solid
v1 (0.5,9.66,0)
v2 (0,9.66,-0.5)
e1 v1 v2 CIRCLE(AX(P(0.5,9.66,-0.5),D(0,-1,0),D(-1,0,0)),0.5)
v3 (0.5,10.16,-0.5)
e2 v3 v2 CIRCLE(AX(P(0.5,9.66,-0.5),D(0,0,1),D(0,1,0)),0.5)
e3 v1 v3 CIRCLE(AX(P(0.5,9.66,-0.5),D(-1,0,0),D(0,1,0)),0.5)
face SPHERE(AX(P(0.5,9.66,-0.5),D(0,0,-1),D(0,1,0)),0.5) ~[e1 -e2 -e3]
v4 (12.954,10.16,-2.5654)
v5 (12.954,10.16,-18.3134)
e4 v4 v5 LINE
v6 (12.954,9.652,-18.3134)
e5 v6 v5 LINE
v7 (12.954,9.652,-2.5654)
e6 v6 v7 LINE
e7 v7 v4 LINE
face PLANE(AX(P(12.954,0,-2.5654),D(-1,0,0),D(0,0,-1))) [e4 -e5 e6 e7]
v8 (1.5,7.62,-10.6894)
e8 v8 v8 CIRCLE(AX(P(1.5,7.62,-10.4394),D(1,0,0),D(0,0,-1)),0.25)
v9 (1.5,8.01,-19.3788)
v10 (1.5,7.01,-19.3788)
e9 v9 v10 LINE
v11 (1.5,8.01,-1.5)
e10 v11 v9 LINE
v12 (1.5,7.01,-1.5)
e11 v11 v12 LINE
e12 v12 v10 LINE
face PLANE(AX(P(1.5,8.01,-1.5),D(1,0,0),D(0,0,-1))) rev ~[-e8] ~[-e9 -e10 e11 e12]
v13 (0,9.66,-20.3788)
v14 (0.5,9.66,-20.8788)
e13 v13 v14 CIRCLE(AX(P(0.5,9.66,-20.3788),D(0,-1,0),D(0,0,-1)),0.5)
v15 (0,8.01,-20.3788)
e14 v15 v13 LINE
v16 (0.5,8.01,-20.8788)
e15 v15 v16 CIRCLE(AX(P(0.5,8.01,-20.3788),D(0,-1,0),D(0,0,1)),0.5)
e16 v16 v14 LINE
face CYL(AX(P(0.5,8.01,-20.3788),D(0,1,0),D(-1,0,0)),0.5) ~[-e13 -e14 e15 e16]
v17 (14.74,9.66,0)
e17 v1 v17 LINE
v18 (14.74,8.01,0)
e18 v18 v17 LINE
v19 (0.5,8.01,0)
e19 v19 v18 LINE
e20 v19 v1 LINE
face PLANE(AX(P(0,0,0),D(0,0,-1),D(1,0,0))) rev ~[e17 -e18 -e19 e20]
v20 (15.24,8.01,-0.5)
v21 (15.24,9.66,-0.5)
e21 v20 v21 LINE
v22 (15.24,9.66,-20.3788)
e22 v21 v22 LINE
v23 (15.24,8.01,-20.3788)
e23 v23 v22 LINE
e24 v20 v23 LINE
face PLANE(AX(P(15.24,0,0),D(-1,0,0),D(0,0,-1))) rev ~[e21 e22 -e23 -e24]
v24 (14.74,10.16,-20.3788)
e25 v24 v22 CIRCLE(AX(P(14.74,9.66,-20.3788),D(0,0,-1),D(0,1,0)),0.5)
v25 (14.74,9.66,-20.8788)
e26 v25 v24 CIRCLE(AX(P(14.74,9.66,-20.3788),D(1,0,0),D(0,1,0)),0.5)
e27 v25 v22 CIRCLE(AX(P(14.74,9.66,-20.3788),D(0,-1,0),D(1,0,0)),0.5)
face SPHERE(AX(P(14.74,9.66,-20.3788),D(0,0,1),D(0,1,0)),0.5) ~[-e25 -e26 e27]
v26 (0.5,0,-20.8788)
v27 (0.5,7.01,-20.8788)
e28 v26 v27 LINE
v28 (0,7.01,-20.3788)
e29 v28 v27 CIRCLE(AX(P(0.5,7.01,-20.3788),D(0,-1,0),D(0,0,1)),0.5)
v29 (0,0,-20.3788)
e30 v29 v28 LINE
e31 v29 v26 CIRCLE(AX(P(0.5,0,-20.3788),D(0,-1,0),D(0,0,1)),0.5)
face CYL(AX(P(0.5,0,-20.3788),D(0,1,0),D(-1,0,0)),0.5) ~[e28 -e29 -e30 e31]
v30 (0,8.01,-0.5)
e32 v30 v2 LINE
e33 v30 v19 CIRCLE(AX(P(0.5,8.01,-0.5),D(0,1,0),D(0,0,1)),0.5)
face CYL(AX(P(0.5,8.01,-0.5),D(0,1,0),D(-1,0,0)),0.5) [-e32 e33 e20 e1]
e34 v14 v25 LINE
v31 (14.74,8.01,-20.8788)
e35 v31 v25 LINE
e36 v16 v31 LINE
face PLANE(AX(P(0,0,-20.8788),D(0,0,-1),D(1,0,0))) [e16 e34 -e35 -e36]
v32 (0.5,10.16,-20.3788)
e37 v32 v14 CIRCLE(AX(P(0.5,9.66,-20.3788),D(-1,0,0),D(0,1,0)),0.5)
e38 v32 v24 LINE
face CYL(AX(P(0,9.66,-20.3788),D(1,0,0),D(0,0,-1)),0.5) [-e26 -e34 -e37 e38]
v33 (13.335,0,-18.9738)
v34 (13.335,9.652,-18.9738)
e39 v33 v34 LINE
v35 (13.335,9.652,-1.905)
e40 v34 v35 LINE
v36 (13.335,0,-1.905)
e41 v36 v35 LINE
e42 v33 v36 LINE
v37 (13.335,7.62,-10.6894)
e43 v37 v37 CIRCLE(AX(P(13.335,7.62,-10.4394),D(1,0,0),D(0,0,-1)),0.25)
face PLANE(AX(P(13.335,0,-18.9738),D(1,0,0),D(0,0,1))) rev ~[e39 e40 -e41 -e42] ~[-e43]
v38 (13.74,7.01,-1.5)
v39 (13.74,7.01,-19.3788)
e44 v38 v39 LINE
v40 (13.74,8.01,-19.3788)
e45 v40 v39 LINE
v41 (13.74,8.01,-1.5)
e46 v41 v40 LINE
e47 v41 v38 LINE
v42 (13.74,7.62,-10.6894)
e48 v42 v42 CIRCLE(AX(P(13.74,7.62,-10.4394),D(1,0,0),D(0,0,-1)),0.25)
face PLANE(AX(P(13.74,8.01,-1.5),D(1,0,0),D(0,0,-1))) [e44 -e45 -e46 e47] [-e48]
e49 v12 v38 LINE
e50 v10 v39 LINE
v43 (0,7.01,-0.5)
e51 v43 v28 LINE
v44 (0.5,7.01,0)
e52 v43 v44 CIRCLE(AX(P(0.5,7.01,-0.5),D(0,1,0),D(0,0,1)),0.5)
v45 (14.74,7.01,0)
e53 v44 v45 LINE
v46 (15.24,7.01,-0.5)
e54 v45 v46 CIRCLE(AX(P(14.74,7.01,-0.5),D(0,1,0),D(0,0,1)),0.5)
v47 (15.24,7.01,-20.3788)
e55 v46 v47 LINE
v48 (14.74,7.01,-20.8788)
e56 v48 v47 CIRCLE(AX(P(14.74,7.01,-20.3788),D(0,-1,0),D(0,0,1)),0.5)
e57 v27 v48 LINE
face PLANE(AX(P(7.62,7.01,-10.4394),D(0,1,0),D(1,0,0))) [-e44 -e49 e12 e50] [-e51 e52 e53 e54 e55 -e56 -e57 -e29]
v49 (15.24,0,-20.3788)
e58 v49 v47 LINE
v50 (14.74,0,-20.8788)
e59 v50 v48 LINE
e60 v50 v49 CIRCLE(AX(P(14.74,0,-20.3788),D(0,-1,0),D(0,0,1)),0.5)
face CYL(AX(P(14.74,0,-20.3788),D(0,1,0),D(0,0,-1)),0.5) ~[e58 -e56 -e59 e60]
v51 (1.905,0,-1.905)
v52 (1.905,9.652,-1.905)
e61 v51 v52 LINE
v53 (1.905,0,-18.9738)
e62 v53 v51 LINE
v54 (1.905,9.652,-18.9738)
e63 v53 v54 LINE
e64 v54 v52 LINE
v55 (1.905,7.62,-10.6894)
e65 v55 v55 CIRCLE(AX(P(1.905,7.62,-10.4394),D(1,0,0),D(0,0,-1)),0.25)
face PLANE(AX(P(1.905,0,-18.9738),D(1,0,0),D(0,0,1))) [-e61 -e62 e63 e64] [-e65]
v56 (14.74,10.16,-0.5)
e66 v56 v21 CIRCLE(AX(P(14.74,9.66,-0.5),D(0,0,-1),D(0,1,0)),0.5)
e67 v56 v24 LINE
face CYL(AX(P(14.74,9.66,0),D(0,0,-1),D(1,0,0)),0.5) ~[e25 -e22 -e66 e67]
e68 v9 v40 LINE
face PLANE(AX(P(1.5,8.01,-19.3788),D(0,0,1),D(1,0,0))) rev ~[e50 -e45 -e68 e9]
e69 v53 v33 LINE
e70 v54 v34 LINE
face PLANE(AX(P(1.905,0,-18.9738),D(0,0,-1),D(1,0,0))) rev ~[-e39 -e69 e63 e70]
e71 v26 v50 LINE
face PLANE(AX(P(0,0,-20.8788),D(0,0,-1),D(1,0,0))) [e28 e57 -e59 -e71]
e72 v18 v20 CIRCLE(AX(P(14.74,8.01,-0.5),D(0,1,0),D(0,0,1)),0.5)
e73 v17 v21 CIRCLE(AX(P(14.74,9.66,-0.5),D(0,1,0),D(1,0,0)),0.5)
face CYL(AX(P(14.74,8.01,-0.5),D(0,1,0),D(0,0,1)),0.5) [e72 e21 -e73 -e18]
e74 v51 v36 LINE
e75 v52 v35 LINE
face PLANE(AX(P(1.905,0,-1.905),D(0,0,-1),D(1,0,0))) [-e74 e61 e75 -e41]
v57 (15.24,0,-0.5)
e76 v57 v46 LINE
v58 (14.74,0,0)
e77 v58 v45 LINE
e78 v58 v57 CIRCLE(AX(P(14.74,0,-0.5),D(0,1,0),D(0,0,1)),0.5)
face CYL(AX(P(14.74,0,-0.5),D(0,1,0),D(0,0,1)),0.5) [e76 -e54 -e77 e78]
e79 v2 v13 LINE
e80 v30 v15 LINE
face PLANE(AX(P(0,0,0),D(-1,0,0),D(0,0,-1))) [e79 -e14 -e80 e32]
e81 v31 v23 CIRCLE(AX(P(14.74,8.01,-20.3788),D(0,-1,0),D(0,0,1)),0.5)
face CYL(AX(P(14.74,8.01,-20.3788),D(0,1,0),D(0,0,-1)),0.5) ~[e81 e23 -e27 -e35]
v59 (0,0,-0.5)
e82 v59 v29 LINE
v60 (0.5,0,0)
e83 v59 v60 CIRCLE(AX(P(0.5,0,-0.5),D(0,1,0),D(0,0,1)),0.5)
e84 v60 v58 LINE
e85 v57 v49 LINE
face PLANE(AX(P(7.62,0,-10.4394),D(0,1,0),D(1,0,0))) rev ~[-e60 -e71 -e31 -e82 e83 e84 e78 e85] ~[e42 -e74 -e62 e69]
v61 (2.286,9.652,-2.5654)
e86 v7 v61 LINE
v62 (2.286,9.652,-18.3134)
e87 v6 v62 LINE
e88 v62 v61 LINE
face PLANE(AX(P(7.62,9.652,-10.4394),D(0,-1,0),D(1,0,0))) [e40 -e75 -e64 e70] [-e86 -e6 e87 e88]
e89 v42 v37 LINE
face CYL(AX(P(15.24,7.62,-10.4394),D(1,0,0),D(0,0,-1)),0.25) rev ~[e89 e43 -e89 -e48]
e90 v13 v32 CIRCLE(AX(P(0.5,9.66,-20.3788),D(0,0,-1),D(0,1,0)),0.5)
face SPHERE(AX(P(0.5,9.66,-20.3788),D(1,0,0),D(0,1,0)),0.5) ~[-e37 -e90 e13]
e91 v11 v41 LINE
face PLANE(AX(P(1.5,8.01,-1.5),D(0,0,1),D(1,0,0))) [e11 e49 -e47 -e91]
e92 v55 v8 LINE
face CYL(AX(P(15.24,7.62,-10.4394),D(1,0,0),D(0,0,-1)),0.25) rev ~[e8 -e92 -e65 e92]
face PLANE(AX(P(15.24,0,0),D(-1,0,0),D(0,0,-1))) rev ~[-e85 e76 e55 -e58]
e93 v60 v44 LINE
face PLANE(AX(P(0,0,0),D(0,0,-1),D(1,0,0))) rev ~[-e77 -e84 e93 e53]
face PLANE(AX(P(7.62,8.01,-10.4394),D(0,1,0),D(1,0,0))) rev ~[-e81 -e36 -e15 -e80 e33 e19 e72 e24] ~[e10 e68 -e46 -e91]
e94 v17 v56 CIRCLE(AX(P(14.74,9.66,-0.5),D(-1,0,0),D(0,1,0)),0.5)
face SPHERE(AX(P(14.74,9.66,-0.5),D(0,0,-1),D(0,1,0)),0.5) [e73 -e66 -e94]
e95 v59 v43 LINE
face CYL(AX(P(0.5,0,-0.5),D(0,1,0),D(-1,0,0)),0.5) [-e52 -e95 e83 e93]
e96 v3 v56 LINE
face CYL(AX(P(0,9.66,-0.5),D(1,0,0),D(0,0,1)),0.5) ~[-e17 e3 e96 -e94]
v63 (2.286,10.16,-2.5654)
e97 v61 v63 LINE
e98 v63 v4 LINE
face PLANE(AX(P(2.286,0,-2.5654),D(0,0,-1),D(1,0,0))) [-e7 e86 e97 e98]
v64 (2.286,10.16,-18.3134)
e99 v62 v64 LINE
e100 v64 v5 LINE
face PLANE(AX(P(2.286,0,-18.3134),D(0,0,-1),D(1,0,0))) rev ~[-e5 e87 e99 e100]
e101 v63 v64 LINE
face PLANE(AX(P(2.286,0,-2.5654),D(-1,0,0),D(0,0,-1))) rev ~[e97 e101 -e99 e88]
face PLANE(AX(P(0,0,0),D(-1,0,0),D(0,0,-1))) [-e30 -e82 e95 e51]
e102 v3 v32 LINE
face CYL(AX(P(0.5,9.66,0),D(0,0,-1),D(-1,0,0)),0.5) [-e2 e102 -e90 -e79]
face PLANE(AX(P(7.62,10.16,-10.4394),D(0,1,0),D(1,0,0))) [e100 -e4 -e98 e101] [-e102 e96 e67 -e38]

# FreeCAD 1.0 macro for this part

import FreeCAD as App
import Part
import Sketcher
from FreeCAD import Vector
Q = App.Units.Quantity


def edges_at(feature, points):
    """Names of the edges that pass closest to the given points."""
    edges = feature.Shape.Edges
    near = lambda p: min(range(len(edges)), key=lambda i: edges[i].distToShape(Part.Vertex(*p))[0])
    return sorted({f"Edge{near(p) + 1}" for p in points})


def add_polygon(sketch, points):
    """Adds a closed chain of lines whose ends are joined by coincident constraints."""
    first, n = sketch.GeometryCount, len(points)
    for a, b in zip(points, points[1:] + points[:1]):
        sketch.addGeometry(Part.LineSegment(App.Vector(*a, 0), App.Vector(*b, 0)), False)
    for i in range(n):
        sketch.addConstraint(Sketcher.Constraint("Coincident", first + i, 2, first + (i + 1) % n, 1))

doc = App.newDocument("Part")
body = doc.addObject("PartDesign::Body", "Body")

# Sketch on XZ plane
sketch1 = doc.addObject("Sketcher::SketchObject", "Sketch")
body.addObject(sketch1)
sketch1.AttachmentSupport = (doc.XZ_Plane, [""])
sketch1.MapMode = "FlatFace"
add_polygon(sketch1, [(0, -21), (0, 0), (15, 0), (15, -21)])  # lines 0-3
add_polygon(sketch1, [(13, -3), (2, -3), (2, -18), (13, -18)])  # lines 4-7
sketch1.addConstraint(Sketcher.Constraint("Vertical", 0))
sketch1.addConstraint(Sketcher.Constraint("Horizontal", 1))
sketch1.addConstraint(Sketcher.Constraint("Vertical", 2))
sketch1.addConstraint(Sketcher.Constraint("Horizontal", 3))
sketch1.addConstraint(Sketcher.Constraint("Horizontal", 4))
sketch1.addConstraint(Sketcher.Constraint("Vertical", 5))
sketch1.addConstraint(Sketcher.Constraint("Horizontal", 6))
sketch1.addConstraint(Sketcher.Constraint("Vertical", 7))
sketch1.addConstraint(Sketcher.Constraint("Coincident", 0, 2, -1, 1))
sketch1.addConstraint(Sketcher.Constraint("DistanceX", 1, 1, 1, 2, Q("0.6 in")))
sketch1.addConstraint(Sketcher.Constraint("DistanceX", 4, 2, 4, 1, Q("0.42 in")))
sketch1.addConstraint(Sketcher.Constraint("DistanceY", 5, 2, 5, 1, Q("0.62 in")))
sketch1.addConstraint(Sketcher.Constraint("DistanceY", 0, 1, 0, 2, Q("0.822 in")))
sketch1.addConstraint(Sketcher.Constraint("DistanceX", -1, 1, 4, 2, Q("0.09 in")))
sketch1.addConstraint(Sketcher.Constraint("DistanceY", 4, 2, -1, 1, Q("0.101 in")))
pad1 = doc.addObject("PartDesign::Pad", "Pad")
body.addObject(pad1)
pad1.Profile = sketch1
pad1.Length = Q("0.4 in")
pad1.Reversed = True

# Sketch on YZ plane
sketch2 = doc.addObject("Sketcher::SketchObject", "Sketch001")
body.addObject(sketch2)
sketch2.AttachmentSupport = (doc.YZ_Plane, [""])
sketch2.MapMode = "FlatFace"
sketch2.AttachmentOffset = App.Placement(Vector(0, 0, 0.6 * 25.4), App.Rotation())
sketch2.addGeometry(Part.Circle(Vector(7.62, -10.44, 0), Vector(0, 0, 1), 0.25), False)
sketch2.addConstraint(Sketcher.Constraint("DistanceX", -1, 1, 0, 3, Q("0.3 in")))
sketch2.addConstraint(Sketcher.Constraint("Diameter", 0, Q("0.5 mm")))
sketch2.addConstraint(Sketcher.Constraint("DistanceY", 0, 3, -1, 1, Q("0.411 in")))
pocket1 = doc.addObject("PartDesign::Pocket", "Pocket")
body.addObject(pocket1)
pocket1.Profile = sketch2
pocket1.Type = "ThroughAll"

# Sketch on XZ plane
sketch3 = doc.addObject("Sketcher::SketchObject", "Sketch002")
body.addObject(sketch3)
sketch3.AttachmentSupport = (doc.XZ_Plane, [""])
sketch3.MapMode = "FlatFace"
add_polygon(sketch3, [(2, -2), (2, -19), (13, -19), (13, -2)])  # lines 0-3
sketch3.addConstraint(Sketcher.Constraint("Vertical", 0))
sketch3.addConstraint(Sketcher.Constraint("Horizontal", 1))
sketch3.addConstraint(Sketcher.Constraint("Vertical", 2))
sketch3.addConstraint(Sketcher.Constraint("Horizontal", 3))
sketch3.addConstraint(Sketcher.Constraint("DistanceX", 1, 1, 1, 2, Q("0.45 in")))
sketch3.addConstraint(Sketcher.Constraint("DistanceY", 0, 2, 0, 1, Q("0.672 in")))
sketch3.addConstraint(Sketcher.Constraint("DistanceX", -1, 1, 0, 2, Q("0.075 in")))
sketch3.addConstraint(Sketcher.Constraint("DistanceY", 0, 2, -1, 1, Q("0.747 in")))
pocket2 = doc.addObject("PartDesign::Pocket", "Pocket001")
body.addObject(pocket2)
pocket2.Profile = sketch3
pocket2.Length = Q("0.38 in")

# Sketch on XZ plane
sketch4 = doc.addObject("Sketcher::SketchObject", "Sketch003")
body.addObject(sketch4)
sketch4.AttachmentSupport = (doc.XZ_Plane, [""])
sketch4.MapMode = "FlatFace"
sketch4.AttachmentOffset = App.Placement(Vector(0, 0, -8.01), App.Rotation())
add_polygon(sketch4, [(0, -21), (0, 0), (15, 0), (15, -21)])  # lines 0-3
add_polygon(sketch4, [(14, -2), (2, -2), (2, -19), (14, -19)])  # lines 4-7
sketch4.addConstraint(Sketcher.Constraint("Vertical", 0))
sketch4.addConstraint(Sketcher.Constraint("Horizontal", 1))
sketch4.addConstraint(Sketcher.Constraint("Vertical", 2))
sketch4.addConstraint(Sketcher.Constraint("Horizontal", 3))
sketch4.addConstraint(Sketcher.Constraint("Horizontal", 4))
sketch4.addConstraint(Sketcher.Constraint("Vertical", 5))
sketch4.addConstraint(Sketcher.Constraint("Horizontal", 6))
sketch4.addConstraint(Sketcher.Constraint("Vertical", 7))
sketch4.addConstraint(Sketcher.Constraint("Coincident", 0, 2, -1, 1))
sketch4.addConstraint(Sketcher.Constraint("DistanceX", 1, 1, 1, 2, Q("0.6 in")))
sketch4.addConstraint(Sketcher.Constraint("DistanceY", 0, 1, 0, 2, Q("0.822 in")))
sketch4.addConstraint(Sketcher.Constraint("DistanceX", 4, 2, 4, 1, Q("12.24 mm")))
sketch4.addConstraint(Sketcher.Constraint("DistanceY", 5, 2, 5, 1, Q("17.8788 mm")))
sketch4.addConstraint(Sketcher.Constraint("DistanceX", -1, 1, 4, 2, Q("1.5 mm")))
sketch4.addConstraint(Sketcher.Constraint("DistanceY", 4, 2, -1, 1, Q("1.5 mm")))
pocket3 = doc.addObject("PartDesign::Pocket", "Pocket002")
body.addObject(pocket3)
pocket3.Profile = sketch4
pocket3.Length = 1
pocket3.Reversed = True
doc.recompute()

fillet = doc.addObject("PartDesign::Fillet", "Fillet")
body.addObject(fillet)
fillet.Base = (pocket3, edges_at(pocket3, [
    (15.24, 10.16, -10.439),
    (7.62, 10.16, -20.879),
    (0, 10.16, -10.439),
    (0, 3.505, -20.879),
    (15.24, 3.505, -20.879),
    (15.24, 3.505, 0),
    (0, 3.505, 0),
    (7.62, 10.16, 0),
    (0, 9.085, -20.879),
    (15.24, 9.085, -20.879),
    (15.24, 9.085, 0),
    (0, 9.085, 0),
]))
fillet.Radius = 0.5

doc.recompute()
